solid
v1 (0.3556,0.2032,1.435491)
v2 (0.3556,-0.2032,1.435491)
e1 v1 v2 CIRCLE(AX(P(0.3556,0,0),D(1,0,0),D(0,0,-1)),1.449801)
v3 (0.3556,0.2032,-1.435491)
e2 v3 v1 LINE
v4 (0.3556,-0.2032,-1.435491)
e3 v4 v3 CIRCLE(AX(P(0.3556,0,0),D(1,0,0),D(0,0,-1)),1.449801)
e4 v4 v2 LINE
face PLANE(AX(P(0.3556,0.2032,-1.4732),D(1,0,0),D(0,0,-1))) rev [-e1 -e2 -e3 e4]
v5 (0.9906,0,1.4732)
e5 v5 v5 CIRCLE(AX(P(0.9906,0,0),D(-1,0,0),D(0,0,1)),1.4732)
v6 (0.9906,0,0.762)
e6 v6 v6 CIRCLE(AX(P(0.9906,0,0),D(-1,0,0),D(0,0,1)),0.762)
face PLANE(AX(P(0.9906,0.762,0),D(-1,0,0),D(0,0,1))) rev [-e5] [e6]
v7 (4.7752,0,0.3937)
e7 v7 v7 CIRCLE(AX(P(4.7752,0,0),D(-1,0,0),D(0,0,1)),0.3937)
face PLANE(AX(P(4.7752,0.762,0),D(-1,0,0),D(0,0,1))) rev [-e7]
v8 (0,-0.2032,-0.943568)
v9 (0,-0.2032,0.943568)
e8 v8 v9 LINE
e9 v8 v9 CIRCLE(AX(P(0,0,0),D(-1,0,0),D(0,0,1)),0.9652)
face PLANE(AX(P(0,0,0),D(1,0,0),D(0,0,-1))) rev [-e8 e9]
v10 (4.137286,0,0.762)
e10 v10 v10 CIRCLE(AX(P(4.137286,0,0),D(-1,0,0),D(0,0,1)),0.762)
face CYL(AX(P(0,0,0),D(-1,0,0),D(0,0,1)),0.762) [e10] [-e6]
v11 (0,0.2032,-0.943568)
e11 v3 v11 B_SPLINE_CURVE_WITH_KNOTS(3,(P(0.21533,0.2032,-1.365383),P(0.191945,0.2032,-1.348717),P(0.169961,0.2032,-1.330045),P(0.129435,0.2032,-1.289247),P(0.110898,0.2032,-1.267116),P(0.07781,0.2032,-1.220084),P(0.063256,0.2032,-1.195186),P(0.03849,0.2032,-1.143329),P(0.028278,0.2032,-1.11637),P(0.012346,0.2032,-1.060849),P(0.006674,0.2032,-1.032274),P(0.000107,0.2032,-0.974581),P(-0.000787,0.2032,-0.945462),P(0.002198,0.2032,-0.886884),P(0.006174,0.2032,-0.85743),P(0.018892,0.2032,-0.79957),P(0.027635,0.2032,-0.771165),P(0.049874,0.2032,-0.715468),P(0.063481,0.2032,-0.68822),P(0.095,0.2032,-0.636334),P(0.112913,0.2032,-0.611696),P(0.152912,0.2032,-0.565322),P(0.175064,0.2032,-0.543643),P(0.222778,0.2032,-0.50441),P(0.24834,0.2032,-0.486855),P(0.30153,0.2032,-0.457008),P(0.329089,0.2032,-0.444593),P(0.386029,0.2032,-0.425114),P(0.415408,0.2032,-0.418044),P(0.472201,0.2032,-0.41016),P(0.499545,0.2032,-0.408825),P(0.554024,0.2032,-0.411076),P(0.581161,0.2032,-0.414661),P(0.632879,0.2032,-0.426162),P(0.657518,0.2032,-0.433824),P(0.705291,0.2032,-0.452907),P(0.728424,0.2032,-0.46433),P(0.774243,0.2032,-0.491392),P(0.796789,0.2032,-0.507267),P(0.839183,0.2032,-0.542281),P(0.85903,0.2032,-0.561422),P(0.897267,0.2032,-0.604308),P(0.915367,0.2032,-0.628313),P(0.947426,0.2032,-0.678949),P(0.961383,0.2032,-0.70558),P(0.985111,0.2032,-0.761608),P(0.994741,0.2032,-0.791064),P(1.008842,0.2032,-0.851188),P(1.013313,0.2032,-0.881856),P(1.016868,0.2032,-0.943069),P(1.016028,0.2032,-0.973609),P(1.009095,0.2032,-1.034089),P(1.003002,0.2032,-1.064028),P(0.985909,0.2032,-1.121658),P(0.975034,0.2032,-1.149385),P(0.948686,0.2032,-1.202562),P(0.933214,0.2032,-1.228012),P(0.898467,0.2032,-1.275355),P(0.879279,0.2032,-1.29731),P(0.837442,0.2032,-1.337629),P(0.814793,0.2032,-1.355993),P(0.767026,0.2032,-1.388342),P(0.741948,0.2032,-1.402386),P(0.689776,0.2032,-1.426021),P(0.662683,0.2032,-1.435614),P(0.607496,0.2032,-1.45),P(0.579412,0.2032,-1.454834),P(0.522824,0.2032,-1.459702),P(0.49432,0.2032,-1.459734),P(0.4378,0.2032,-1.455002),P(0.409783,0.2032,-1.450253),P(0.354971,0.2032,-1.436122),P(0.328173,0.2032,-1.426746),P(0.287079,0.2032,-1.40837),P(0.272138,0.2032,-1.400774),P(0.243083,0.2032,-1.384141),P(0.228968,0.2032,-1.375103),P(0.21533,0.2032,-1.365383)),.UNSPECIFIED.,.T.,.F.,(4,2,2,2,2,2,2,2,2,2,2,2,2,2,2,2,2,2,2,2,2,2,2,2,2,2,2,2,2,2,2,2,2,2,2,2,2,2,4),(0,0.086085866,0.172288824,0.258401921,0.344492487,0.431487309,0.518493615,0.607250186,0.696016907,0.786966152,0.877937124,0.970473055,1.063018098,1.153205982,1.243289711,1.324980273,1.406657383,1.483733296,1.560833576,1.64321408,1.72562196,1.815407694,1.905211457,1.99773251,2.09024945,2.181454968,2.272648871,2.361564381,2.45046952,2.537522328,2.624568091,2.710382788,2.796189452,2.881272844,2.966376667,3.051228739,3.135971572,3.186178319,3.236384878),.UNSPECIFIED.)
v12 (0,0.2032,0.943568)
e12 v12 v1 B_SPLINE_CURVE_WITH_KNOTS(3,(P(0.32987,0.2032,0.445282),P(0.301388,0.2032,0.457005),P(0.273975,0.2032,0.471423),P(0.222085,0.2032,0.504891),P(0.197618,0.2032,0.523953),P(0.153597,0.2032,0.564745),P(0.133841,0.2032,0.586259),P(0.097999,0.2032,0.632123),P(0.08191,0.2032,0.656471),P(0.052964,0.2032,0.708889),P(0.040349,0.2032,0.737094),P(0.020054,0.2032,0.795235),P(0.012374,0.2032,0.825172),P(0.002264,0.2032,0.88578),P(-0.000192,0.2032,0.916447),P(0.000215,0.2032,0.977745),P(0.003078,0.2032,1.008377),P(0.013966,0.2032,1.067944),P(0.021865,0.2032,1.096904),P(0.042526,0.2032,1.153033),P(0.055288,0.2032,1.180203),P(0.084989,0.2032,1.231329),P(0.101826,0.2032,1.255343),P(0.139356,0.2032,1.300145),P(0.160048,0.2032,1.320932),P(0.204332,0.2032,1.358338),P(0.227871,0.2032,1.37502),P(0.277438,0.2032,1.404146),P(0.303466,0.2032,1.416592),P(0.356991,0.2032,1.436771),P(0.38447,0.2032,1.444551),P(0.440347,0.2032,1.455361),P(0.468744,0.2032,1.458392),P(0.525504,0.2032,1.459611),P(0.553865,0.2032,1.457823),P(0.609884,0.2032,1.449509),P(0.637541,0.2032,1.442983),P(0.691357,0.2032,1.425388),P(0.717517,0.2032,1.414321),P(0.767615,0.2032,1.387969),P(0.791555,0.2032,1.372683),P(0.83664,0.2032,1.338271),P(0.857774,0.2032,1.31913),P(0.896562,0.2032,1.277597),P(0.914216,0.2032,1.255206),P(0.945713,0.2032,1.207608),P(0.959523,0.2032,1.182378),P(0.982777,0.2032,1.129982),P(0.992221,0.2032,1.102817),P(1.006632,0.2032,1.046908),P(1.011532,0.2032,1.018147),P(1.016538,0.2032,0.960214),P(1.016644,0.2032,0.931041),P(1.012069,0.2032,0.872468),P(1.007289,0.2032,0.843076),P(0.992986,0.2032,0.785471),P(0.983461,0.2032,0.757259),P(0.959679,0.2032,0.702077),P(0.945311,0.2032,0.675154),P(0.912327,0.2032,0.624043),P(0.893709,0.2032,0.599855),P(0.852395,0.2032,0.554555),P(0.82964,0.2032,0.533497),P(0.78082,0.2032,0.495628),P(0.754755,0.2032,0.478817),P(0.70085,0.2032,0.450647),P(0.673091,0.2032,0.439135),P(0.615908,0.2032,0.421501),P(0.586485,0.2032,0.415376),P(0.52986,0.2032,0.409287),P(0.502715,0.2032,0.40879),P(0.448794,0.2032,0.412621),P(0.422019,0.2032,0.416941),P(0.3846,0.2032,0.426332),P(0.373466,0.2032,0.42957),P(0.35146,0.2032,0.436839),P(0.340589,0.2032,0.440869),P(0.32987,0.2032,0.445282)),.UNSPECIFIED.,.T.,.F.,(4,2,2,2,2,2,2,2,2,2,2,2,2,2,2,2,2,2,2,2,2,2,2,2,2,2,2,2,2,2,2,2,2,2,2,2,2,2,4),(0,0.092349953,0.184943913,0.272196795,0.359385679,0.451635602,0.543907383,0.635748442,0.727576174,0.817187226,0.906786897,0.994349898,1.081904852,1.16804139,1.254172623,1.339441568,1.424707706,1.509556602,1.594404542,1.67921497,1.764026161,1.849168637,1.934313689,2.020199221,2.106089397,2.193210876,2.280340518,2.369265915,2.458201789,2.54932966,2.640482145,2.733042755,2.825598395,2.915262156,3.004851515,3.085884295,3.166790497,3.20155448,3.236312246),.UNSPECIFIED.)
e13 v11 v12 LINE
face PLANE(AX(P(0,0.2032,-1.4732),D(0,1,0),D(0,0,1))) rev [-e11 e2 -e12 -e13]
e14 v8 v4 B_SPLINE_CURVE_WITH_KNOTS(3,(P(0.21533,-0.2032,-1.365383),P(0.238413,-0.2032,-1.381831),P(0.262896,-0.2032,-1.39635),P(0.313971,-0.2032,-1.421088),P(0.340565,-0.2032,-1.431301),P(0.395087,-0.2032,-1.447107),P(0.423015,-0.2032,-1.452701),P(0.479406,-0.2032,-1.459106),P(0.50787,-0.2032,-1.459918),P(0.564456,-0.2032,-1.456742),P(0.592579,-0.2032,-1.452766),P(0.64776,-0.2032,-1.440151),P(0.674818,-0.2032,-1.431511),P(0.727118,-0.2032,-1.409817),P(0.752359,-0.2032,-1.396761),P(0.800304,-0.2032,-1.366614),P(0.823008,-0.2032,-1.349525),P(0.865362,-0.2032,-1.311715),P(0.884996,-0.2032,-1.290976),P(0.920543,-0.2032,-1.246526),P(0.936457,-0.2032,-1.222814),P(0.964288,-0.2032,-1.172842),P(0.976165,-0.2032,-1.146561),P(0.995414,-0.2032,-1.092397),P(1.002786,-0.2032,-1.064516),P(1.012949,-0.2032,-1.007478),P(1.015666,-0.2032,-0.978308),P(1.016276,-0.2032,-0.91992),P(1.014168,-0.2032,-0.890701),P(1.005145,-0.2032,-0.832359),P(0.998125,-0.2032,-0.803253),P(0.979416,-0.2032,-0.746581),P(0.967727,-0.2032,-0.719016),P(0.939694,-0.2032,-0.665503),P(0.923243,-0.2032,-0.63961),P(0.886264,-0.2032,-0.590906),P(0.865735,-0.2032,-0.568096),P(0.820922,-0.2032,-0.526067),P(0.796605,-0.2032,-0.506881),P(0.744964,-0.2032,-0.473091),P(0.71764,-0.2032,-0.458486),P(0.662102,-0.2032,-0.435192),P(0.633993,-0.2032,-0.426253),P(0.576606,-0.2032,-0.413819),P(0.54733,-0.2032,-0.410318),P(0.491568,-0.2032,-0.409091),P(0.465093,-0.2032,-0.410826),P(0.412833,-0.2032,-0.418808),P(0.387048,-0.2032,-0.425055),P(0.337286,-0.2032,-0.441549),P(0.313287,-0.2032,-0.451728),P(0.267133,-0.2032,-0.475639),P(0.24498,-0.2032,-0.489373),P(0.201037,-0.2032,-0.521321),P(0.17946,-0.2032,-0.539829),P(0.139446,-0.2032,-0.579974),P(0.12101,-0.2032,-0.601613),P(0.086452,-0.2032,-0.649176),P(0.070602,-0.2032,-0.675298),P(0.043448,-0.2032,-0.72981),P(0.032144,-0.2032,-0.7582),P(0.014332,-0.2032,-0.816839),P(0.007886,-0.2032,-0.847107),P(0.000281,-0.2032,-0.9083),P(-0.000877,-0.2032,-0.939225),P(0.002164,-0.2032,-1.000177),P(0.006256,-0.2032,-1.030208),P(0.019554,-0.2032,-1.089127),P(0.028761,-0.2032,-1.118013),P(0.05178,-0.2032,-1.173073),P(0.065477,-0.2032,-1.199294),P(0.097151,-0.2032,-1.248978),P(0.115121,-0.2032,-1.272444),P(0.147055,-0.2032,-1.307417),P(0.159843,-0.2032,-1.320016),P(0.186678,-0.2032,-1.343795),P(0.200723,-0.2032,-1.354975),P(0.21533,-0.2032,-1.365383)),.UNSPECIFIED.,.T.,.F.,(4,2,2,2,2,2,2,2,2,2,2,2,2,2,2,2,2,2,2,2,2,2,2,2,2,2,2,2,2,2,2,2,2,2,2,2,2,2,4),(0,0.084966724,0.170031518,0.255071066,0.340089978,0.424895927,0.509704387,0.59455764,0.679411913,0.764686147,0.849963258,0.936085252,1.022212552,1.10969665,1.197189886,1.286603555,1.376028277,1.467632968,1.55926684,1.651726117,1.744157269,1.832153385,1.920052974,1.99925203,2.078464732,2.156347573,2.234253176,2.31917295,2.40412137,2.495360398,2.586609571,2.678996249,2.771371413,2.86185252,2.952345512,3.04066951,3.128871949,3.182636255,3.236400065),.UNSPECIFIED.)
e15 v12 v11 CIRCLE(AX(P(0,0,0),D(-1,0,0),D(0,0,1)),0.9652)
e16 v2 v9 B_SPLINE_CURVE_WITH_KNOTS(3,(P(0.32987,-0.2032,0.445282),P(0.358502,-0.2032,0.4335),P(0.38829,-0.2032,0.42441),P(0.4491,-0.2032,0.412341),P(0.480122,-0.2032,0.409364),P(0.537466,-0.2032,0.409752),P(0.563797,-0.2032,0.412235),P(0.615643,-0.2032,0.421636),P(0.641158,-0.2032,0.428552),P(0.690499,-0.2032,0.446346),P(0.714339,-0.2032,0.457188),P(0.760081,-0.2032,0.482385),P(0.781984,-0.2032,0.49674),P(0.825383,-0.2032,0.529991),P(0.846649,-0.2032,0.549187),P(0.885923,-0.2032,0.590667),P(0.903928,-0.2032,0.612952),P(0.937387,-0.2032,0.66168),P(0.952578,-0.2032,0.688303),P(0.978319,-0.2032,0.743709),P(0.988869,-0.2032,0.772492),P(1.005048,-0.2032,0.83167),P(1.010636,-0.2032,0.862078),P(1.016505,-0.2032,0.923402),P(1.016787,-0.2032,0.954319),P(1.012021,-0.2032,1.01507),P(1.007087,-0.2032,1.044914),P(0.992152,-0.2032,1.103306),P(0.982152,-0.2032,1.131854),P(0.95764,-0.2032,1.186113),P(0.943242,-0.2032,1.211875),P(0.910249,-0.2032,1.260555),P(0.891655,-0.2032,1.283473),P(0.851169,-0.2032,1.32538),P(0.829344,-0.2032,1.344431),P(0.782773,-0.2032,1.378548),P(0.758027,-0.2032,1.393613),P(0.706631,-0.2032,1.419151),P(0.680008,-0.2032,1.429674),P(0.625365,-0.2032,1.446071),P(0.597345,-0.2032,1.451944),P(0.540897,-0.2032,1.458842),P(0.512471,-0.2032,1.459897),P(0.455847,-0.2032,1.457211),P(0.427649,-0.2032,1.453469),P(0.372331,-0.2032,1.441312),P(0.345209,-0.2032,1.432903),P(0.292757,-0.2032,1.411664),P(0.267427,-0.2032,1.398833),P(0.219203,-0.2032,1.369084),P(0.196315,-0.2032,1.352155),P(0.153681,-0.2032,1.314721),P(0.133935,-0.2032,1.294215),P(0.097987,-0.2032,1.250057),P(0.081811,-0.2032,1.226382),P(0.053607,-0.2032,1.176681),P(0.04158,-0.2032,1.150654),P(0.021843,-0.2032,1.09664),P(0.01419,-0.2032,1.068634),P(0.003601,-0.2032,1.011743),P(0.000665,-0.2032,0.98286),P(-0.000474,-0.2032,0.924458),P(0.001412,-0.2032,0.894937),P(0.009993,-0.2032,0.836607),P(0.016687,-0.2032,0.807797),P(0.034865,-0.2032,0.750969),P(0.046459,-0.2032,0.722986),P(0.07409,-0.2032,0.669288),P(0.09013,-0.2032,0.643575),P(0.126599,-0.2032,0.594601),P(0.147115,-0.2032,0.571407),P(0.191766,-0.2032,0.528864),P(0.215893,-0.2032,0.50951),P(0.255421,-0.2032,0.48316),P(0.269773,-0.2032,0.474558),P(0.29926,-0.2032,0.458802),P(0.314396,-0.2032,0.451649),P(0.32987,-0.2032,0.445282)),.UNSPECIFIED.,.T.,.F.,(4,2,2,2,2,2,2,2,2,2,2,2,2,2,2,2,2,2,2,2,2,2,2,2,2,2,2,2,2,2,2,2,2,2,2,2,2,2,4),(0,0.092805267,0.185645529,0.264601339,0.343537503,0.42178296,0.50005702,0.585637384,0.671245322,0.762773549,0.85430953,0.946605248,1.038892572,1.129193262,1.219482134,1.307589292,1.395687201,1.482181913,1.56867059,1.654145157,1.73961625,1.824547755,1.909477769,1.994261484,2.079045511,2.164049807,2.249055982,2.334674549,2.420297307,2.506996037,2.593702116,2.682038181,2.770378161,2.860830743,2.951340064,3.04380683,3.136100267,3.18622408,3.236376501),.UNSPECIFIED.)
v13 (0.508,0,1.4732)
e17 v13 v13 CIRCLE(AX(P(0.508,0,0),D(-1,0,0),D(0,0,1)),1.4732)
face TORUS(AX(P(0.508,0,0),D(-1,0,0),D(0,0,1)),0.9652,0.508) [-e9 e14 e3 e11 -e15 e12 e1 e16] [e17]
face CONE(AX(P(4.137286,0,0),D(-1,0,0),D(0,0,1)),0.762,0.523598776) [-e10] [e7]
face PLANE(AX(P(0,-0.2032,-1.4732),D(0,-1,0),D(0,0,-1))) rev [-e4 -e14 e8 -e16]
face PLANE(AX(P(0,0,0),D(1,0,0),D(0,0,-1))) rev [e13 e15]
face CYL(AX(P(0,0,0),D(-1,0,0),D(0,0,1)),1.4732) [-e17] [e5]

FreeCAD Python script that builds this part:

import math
import FreeCAD as App
import Part
import Sketcher

V = App.Vector
Q = App.Units.Quantity

doc = App.newDocument("Part")
body = doc.addObject("PartDesign::Body", "Body")

sketch1 = doc.addObject("Sketcher::SketchObject", "Sketch")
body.addObject(sketch1)
sketch1.AttachmentSupport = (doc.XY_Plane, [""])
sketch1.MapMode = "FlatFace"
sketch1.addGeometry(Part.LineSegment(V(0, 0.97, 0), V(0, 0, 0)), False)
sketch1.addGeometry(Part.LineSegment(V(0, 0, 0), V(4.78, 0, 0)), False)
sketch1.addGeometry(Part.LineSegment(V(4.78, 0, 0), V(4.78, 0.76, 0)), False)
sketch1.addGeometry(Part.LineSegment(V(4.78, 0.76, 0), V(0.99, 0.76, 0)), False)
sketch1.addGeometry(Part.LineSegment(V(0.99, 0.76, 0), V(0.99, 1.47, 0)), False)
sketch1.addGeometry(Part.LineSegment(V(0.99, 1.47, 0), V(0.51, 1.47, 0)), False)
sketch1.addGeometry(Part.ArcOfCircle(Part.Circle(V(0.51, 0.97, 0), V(0, 0, 1), 0.51), math.radians(90), math.radians(180)), False)
sketch1.addConstraint(Sketcher.Constraint("Coincident", 0, 2, 1, 1))
sketch1.addConstraint(Sketcher.Constraint("Coincident", 1, 2, 2, 1))
sketch1.addConstraint(Sketcher.Constraint("Coincident", 2, 2, 3, 1))
sketch1.addConstraint(Sketcher.Constraint("Coincident", 3, 2, 4, 1))
sketch1.addConstraint(Sketcher.Constraint("Coincident", 4, 2, 5, 1))
sketch1.addConstraint(Sketcher.Constraint("Tangent", 5, 2, 6, 1))
sketch1.addConstraint(Sketcher.Constraint("Tangent", 6, 2, 0, 1))
sketch1.addConstraint(Sketcher.Constraint("Vertical", 0))
sketch1.addConstraint(Sketcher.Constraint("Horizontal", 1))
sketch1.addConstraint(Sketcher.Constraint("Vertical", 2))
sketch1.addConstraint(Sketcher.Constraint("Horizontal", 3))
sketch1.addConstraint(Sketcher.Constraint("Vertical", 4))
sketch1.addConstraint(Sketcher.Constraint("Horizontal", 5))
sketch1.addConstraint(Sketcher.Constraint("Coincident", 0, 2, -1, 1))
sketch1.addConstraint(Sketcher.Constraint("Radius", 6, Q("0.02 in")))
sketch1.addConstraint(Sketcher.Constraint("DistanceY", 2, 1, 2, 2, Q("0.03 in")))
sketch1.addConstraint(Sketcher.Constraint("DistanceX", 1, 1, 1, 2, Q("0.188 in")))
sketch1.addConstraint(Sketcher.Constraint("DistanceX", 3, 2, 3, 1, Q("0.149 in")))
sketch1.addConstraint(Sketcher.Constraint("DistanceY", 0, 2, 0, 1, Q("0.038 in")))
revolution = doc.addObject("PartDesign::Revolution", "Revolution")
body.addObject(revolution)
revolution.Profile = sketch1
revolution.ReferenceAxis = (sketch1, ["H_Axis"])
revolution.Angle = 360

sketch2 = doc.addObject("Sketcher::SketchObject", "Sketch001")
body.addObject(sketch2)
sketch2.AttachmentSupport = (doc.XY_Plane, [""])
sketch2.MapMode = "FlatFace"
sketch2.addGeometry(Part.LineSegment(V(0, 0.2, 0), V(0, -0.2, 0)), False)
sketch2.addGeometry(Part.LineSegment(V(0, -0.2, 0), V(0.36, -0.2, 0)), False)
sketch2.addGeometry(Part.LineSegment(V(0.36, -0.2, 0), V(0.36, 0.2, 0)), False)
sketch2.addGeometry(Part.LineSegment(V(0.36, 0.2, 0), V(0, 0.2, 0)), False)
sketch2.addConstraint(Sketcher.Constraint("Coincident", 0, 2, 1, 1))
sketch2.addConstraint(Sketcher.Constraint("Coincident", 1, 2, 2, 1))
sketch2.addConstraint(Sketcher.Constraint("Coincident", 2, 2, 3, 1))
sketch2.addConstraint(Sketcher.Constraint("Coincident", 3, 2, 0, 1))
sketch2.addConstraint(Sketcher.Constraint("Vertical", 0))
sketch2.addConstraint(Sketcher.Constraint("Horizontal", 1))
sketch2.addConstraint(Sketcher.Constraint("Vertical", 2))
sketch2.addConstraint(Sketcher.Constraint("Horizontal", 3))
sketch2.addConstraint(Sketcher.Constraint("Symmetric", 0, 2, 3, 2, -1, 1))
sketch2.addConstraint(Sketcher.Constraint("DistanceX", 1, 1, 1, 2, Q("0.014 in")))
sketch2.addConstraint(Sketcher.Constraint("DistanceY", 0, 2, 0, 1, Q("0.016 in")))
pocket1 = doc.addObject("PartDesign::Pocket", "Pocket")
body.addObject(pocket1)
pocket1.Profile = sketch2
pocket1.Type = "ThroughAll"
pocket1.Midplane = True

sketch3 = doc.addObject("Sketcher::SketchObject", "Sketch002")
body.addObject(sketch3)
sketch3.AttachmentSupport = (doc.XY_Plane, [""])
sketch3.MapMode = "FlatFace"
sketch3.addGeometry(Part.LineSegment(V(4.78, 0, 0), V(5.28, 0, 0)), False)
sketch3.addGeometry(Part.LineSegment(V(5.28, 0, 0), V(5.28, 1.27, 0)), False)
sketch3.addGeometry(Part.LineSegment(V(5.28, 1.27, 0), V(4.14, 1.27, 0)), False)
sketch3.addGeometry(Part.LineSegment(V(4.14, 1.27, 0), V(4.14, 0.76, 0)), False)
sketch3.addGeometry(Part.LineSegment(V(4.14, 0.76, 0), V(4.78, 0.39, 0)), False)
sketch3.addGeometry(Part.LineSegment(V(4.78, 0.39, 0), V(4.78, 0, 0)), False)
sketch3.addConstraint(Sketcher.Constraint("Coincident", 0, 2, 1, 1))
sketch3.addConstraint(Sketcher.Constraint("Coincident", 1, 2, 2, 1))
sketch3.addConstraint(Sketcher.Constraint("Coincident", 2, 2, 3, 1))
sketch3.addConstraint(Sketcher.Constraint("Coincident", 3, 2, 4, 1))
sketch3.addConstraint(Sketcher.Constraint("Coincident", 4, 2, 5, 1))
sketch3.addConstraint(Sketcher.Constraint("Coincident", 5, 2, 0, 1))
sketch3.addConstraint(Sketcher.Constraint("Horizontal", 0))
sketch3.addConstraint(Sketcher.Constraint("Vertical", 1))
sketch3.addConstraint(Sketcher.Constraint("Horizontal", 2))
sketch3.addConstraint(Sketcher.Constraint("Vertical", 3))
sketch3.addConstraint(Sketcher.Constraint("Vertical", 5))
sketch3.addConstraint(Sketcher.Constraint("PointOnObject", 0, 2, -1))
sketch3.addConstraint(Sketcher.Constraint("Equal", 0, 3))
sketch3.addConstraint(Sketcher.Constraint("Angle", 4, Q("-30 deg")))
sketch3.addConstraint(Sketcher.Constraint("DistanceX", 0, 1, 0, 2, Q("0.02 in")))
sketch3.addConstraint(Sketcher.Constraint("DistanceY", 1, 1, 1, 2, Q("0.05 in")))
sketch3.addConstraint(Sketcher.Constraint("Distance", 4, Q("0.029 in")))
sketch3.addConstraint(Sketcher.Constraint("DistanceX", -1, 1, 0, 2, Q("0.208 in")))
groove = doc.addObject("PartDesign::Groove", "Groove")
body.addObject(groove)
groove.Profile = sketch3
groove.ReferenceAxis = (sketch3, ["H_Axis"])
groove.Angle = 360

doc.recompute()
